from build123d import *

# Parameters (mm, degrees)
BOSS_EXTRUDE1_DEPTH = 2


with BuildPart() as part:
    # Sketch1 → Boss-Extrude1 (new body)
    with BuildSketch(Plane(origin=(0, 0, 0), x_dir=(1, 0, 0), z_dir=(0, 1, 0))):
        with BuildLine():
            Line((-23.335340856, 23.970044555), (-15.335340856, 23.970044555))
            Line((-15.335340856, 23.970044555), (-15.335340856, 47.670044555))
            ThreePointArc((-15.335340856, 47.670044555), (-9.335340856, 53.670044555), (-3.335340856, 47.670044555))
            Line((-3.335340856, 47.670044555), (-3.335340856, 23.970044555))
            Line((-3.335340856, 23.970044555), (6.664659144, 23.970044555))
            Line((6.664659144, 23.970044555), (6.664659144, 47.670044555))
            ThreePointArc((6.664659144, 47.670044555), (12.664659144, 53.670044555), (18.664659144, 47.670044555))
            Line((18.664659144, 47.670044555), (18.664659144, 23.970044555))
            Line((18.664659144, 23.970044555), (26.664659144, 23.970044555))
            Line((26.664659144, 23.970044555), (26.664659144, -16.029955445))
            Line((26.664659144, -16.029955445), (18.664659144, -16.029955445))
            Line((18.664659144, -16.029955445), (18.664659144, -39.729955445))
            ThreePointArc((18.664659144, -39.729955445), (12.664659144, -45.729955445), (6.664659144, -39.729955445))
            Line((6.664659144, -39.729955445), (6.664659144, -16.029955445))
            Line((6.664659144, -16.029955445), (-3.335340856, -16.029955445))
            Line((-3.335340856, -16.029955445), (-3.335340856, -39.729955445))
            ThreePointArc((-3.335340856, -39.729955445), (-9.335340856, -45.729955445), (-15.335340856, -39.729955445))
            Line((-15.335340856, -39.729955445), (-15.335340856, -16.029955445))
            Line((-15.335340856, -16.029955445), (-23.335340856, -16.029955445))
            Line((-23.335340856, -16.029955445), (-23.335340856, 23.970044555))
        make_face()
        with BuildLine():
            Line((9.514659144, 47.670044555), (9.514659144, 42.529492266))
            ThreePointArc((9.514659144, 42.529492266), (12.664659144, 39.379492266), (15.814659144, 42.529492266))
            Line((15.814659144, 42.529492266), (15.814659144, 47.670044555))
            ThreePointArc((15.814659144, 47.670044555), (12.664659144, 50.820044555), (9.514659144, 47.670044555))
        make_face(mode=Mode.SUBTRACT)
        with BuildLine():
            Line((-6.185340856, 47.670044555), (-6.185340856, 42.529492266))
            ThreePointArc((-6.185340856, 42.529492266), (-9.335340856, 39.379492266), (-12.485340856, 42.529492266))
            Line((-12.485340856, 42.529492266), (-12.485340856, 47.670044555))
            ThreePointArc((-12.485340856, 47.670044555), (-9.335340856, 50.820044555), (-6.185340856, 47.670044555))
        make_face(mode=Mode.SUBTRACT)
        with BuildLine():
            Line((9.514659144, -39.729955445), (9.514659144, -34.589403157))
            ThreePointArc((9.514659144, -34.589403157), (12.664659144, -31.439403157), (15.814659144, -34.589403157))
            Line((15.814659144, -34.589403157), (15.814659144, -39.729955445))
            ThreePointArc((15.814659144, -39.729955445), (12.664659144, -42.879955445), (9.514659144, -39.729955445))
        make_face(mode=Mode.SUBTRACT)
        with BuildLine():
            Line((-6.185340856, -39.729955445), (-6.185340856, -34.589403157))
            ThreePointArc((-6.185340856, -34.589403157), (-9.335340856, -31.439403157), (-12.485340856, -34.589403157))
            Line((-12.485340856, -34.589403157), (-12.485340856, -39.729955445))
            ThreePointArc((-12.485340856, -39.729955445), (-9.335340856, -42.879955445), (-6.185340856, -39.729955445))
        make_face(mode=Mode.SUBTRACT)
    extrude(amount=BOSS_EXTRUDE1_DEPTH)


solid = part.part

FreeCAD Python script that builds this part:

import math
import FreeCAD as App
import Part
import Sketcher
Q = App.Units.Quantity

doc = App.newDocument("Part")
body = doc.addObject("PartDesign::Body", "Body")

sketch1 = body.newObject("Sketcher::SketchObject", "Sketch")
sketch1.AttachmentSupport = (doc.getObject("XZ_Plane"), [""])
sketch1.MapMode = "FlatFace"
sketch1.addGeometry(Part.LineSegment(App.Vector(-15.3, -24, 0), App.Vector(-23.3, -24, 0)), False)
sketch1.addGeometry(Part.LineSegment(App.Vector(-23.3, -24, 0), App.Vector(-23.3, 16, 0)), False)
sketch1.addGeometry(Part.LineSegment(App.Vector(-23.3, 16, 0), App.Vector(-15.3, 16, 0)), False)
sketch1.addGeometry(Part.LineSegment(App.Vector(-15.3, 16, 0), App.Vector(-15.3, 39.7, 0)), False)
sketch1.addGeometry(Part.ArcOfCircle(Part.Circle(App.Vector(-9.3, 39.7, 0), App.Vector(0, 0, 1), 6), math.radians(0), math.radians(180)), False)
sketch1.addGeometry(Part.LineSegment(App.Vector(-3.3, 39.7, 0), App.Vector(-3.3, 16, 0)), False)
sketch1.addGeometry(Part.LineSegment(App.Vector(-3.3, 16, 0), App.Vector(6.7, 16, 0)), False)
sketch1.addGeometry(Part.LineSegment(App.Vector(6.7, 16, 0), App.Vector(6.7, 39.7, 0)), False)
sketch1.addGeometry(Part.ArcOfCircle(Part.Circle(App.Vector(12.7, 39.7, 0), App.Vector(0, 0, 1), 6), math.radians(0), math.radians(180)), False)
sketch1.addGeometry(Part.LineSegment(App.Vector(18.7, 39.7, 0), App.Vector(18.7, 16, 0)), False)
sketch1.addGeometry(Part.LineSegment(App.Vector(18.7, 16, 0), App.Vector(26.7, 16, 0)), False)
sketch1.addGeometry(Part.LineSegment(App.Vector(26.7, 16, 0), App.Vector(26.7, -24, 0)), False)
sketch1.addGeometry(Part.LineSegment(App.Vector(26.7, -24, 0), App.Vector(18.7, -24, 0)), False)
sketch1.addGeometry(Part.LineSegment(App.Vector(18.7, -24, 0), App.Vector(18.7, -47.7, 0)), False)
sketch1.addGeometry(Part.ArcOfCircle(Part.Circle(App.Vector(12.7, -47.7, 0), App.Vector(0, 0, 1), 6), math.radians(180), math.radians(360)), False)
sketch1.addGeometry(Part.LineSegment(App.Vector(6.7, -47.7, 0), App.Vector(6.7, -24, 0)), False)
sketch1.addGeometry(Part.LineSegment(App.Vector(6.7, -24, 0), App.Vector(-3.3, -24, 0)), False)
sketch1.addGeometry(Part.LineSegment(App.Vector(-3.3, -24, 0), App.Vector(-3.3, -47.7, 0)), False)
sketch1.addGeometry(Part.ArcOfCircle(Part.Circle(App.Vector(-9.3, -47.7, 0), App.Vector(0, 0, 1), 6), math.radians(180), math.radians(360)), False)
sketch1.addGeometry(Part.LineSegment(App.Vector(-15.3, -47.7, 0), App.Vector(-15.3, -24, 0)), False)
sketch1.addGeometry(Part.LineSegment(App.Vector(9.5, 39.7, 0), App.Vector(9.5, 34.6, 0)), False)
sketch1.addGeometry(Part.ArcOfCircle(Part.Circle(App.Vector(12.7, 34.6, 0), App.Vector(0, 0, 1), 3.1), math.radians(180), math.radians(360)), False)
sketch1.addGeometry(Part.LineSegment(App.Vector(15.8, 34.6, 0), App.Vector(15.8, 39.7, 0)), False)
sketch1.addGeometry(Part.ArcOfCircle(Part.Circle(App.Vector(12.7, 39.7, 0), App.Vector(0, 0, 1), 3.1), math.radians(0), math.radians(180)), False)
sketch1.addGeometry(Part.ArcOfCircle(Part.Circle(App.Vector(-9.3, 39.7, 0), App.Vector(0, 0, 1), 3.1), math.radians(0), math.radians(180)), False)
sketch1.addGeometry(Part.LineSegment(App.Vector(-12.5, 39.7, 0), App.Vector(-12.5, 34.6, 0)), False)
sketch1.addGeometry(Part.ArcOfCircle(Part.Circle(App.Vector(-9.3, 34.6, 0), App.Vector(0, 0, 1), 3.1), math.radians(180), math.radians(360)), False)
sketch1.addGeometry(Part.LineSegment(App.Vector(-6.2, 34.6, 0), App.Vector(-6.2, 39.7, 0)), False)
sketch1.addGeometry(Part.ArcOfCircle(Part.Circle(App.Vector(12.7, -47.7, 0), App.Vector(0, 0, 1), 3.1), math.radians(180), math.radians(360)), False)
sketch1.addGeometry(Part.LineSegment(App.Vector(15.8, -47.7, 0), App.Vector(15.8, -42.5, 0)), False)
sketch1.addGeometry(Part.ArcOfCircle(Part.Circle(App.Vector(12.7, -42.5, 0), App.Vector(0, 0, 1), 3.1), math.radians(0), math.radians(180)), False)
sketch1.addGeometry(Part.LineSegment(App.Vector(9.5, -42.5, 0), App.Vector(9.5, -47.7, 0)), False)
sketch1.addGeometry(Part.LineSegment(App.Vector(-6.2, -47.7, 0), App.Vector(-6.2, -42.5, 0)), False)
sketch1.addGeometry(Part.ArcOfCircle(Part.Circle(App.Vector(-9.3, -42.5, 0), App.Vector(0, 0, 1), 3.1), math.radians(0), math.radians(180)), False)
sketch1.addGeometry(Part.LineSegment(App.Vector(-12.5, -42.5, 0), App.Vector(-12.5, -47.7, 0)), False)
sketch1.addGeometry(Part.ArcOfCircle(Part.Circle(App.Vector(-9.3, -47.7, 0), App.Vector(0, 0, 1), 3.1), math.radians(180), math.radians(360)), False)
sketch1.addConstraint(Sketcher.Constraint("Coincident", 0, 2, 1, 1))
sketch1.addConstraint(Sketcher.Constraint("Coincident", 1, 2, 2, 1))
sketch1.addConstraint(Sketcher.Constraint("Coincident", 2, 2, 3, 1))
sketch1.addConstraint(Sketcher.Constraint("Tangent", 3, 2, 4, 2))
sketch1.addConstraint(Sketcher.Constraint("Tangent", 4, 1, 5, 1))
sketch1.addConstraint(Sketcher.Constraint("Coincident", 5, 2, 6, 1))
sketch1.addConstraint(Sketcher.Constraint("Coincident", 6, 2, 7, 1))
sketch1.addConstraint(Sketcher.Constraint("Tangent", 7, 2, 8, 2))
sketch1.addConstraint(Sketcher.Constraint("Tangent", 8, 1, 9, 1))
sketch1.addConstraint(Sketcher.Constraint("Coincident", 9, 2, 10, 1))
sketch1.addConstraint(Sketcher.Constraint("Coincident", 10, 2, 11, 1))
sketch1.addConstraint(Sketcher.Constraint("Coincident", 11, 2, 12, 1))
sketch1.addConstraint(Sketcher.Constraint("Coincident", 12, 2, 13, 1))
sketch1.addConstraint(Sketcher.Constraint("Tangent", 13, 2, 14, 2))
sketch1.addConstraint(Sketcher.Constraint("Tangent", 14, 1, 15, 1))
sketch1.addConstraint(Sketcher.Constraint("Coincident", 15, 2, 16, 1))
sketch1.addConstraint(Sketcher.Constraint("Coincident", 16, 2, 17, 1))
sketch1.addConstraint(Sketcher.Constraint("Tangent", 17, 2, 18, 2))
sketch1.addConstraint(Sketcher.Constraint("Tangent", 18, 1, 19, 1))
sketch1.addConstraint(Sketcher.Constraint("Coincident", 19, 2, 0, 1))
sketch1.addConstraint(Sketcher.Constraint("Tangent", 20, 2, 21, 1))
sketch1.addConstraint(Sketcher.Constraint("Tangent", 21, 2, 22, 1))
sketch1.addConstraint(Sketcher.Constraint("Tangent", 22, 2, 23, 1))
sketch1.addConstraint(Sketcher.Constraint("Tangent", 23, 2, 20, 1))
sketch1.addConstraint(Sketcher.Constraint("Tangent", 24, 2, 25, 1))
sketch1.addConstraint(Sketcher.Constraint("Tangent", 25, 2, 26, 1))
sketch1.addConstraint(Sketcher.Constraint("Tangent", 26, 2, 27, 1))
sketch1.addConstraint(Sketcher.Constraint("Tangent", 27, 2, 24, 1))
sketch1.addConstraint(Sketcher.Constraint("Tangent", 28, 2, 29, 1))
sketch1.addConstraint(Sketcher.Constraint("Tangent", 29, 2, 30, 1))
sketch1.addConstraint(Sketcher.Constraint("Tangent", 30, 2, 31, 1))
sketch1.addConstraint(Sketcher.Constraint("Tangent", 31, 2, 28, 1))
sketch1.addConstraint(Sketcher.Constraint("Tangent", 32, 2, 33, 1))
sketch1.addConstraint(Sketcher.Constraint("Tangent", 33, 2, 34, 1))
sketch1.addConstraint(Sketcher.Constraint("Tangent", 34, 2, 35, 1))
sketch1.addConstraint(Sketcher.Constraint("Tangent", 35, 2, 32, 1))
sketch1.addConstraint(Sketcher.Constraint("Horizontal", 0))
sketch1.addConstraint(Sketcher.Constraint("Vertical", 1))
sketch1.addConstraint(Sketcher.Constraint("Horizontal", 2))
sketch1.addConstraint(Sketcher.Constraint("Vertical", 3))
sketch1.addConstraint(Sketcher.Constraint("Vertical", 5))
sketch1.addConstraint(Sketcher.Constraint("Horizontal", 6))
sketch1.addConstraint(Sketcher.Constraint("Vertical", 7))
sketch1.addConstraint(Sketcher.Constraint("Vertical", 9))
sketch1.addConstraint(Sketcher.Constraint("Horizontal", 10))
sketch1.addConstraint(Sketcher.Constraint("Vertical", 11))
sketch1.addConstraint(Sketcher.Constraint("Horizontal", 12))
sketch1.addConstraint(Sketcher.Constraint("Vertical", 13))
sketch1.addConstraint(Sketcher.Constraint("Vertical", 15))
sketch1.addConstraint(Sketcher.Constraint("Horizontal", 16))
sketch1.addConstraint(Sketcher.Constraint("Vertical", 17))
sketch1.addConstraint(Sketcher.Constraint("Vertical", 19))
sketch1.addConstraint(Sketcher.Constraint("Vertical", 20))
sketch1.addConstraint(Sketcher.Constraint("Vertical", 22))
sketch1.addConstraint(Sketcher.Constraint("Vertical", 25))
sketch1.addConstraint(Sketcher.Constraint("Vertical", 27))
sketch1.addConstraint(Sketcher.Constraint("Vertical", 29))
sketch1.addConstraint(Sketcher.Constraint("Vertical", 31))
sketch1.addConstraint(Sketcher.Constraint("Vertical", 32))
sketch1.addConstraint(Sketcher.Constraint("Vertical", 34))
sketch1.addConstraint(Sketcher.Constraint("Coincident", 23, 3, 8, 3))
sketch1.addConstraint(Sketcher.Constraint("Coincident", 24, 3, 4, 3))
sketch1.addConstraint(Sketcher.Constraint("Coincident", 28, 3, 14, 3))
sketch1.addConstraint(Sketcher.Constraint("Coincident", 35, 3, 18, 3))
sketch1.addConstraint(Sketcher.Constraint("Equal", 4, 8))
sketch1.addConstraint(Sketcher.Constraint("Equal", 8, 14))
sketch1.addConstraint(Sketcher.Constraint("Equal", 14, 18))
sketch1.addConstraint(Sketcher.Constraint("Equal", 23, 24))
sketch1.addConstraint(Sketcher.Constraint("Equal", 26, 28))
sketch1.addConstraint(Sketcher.Constraint("Equal", 30, 33))
sketch1.addConstraint(Sketcher.Constraint("Horizontal", 4, 3, 8, 3))
sketch1.addConstraint(Sketcher.Constraint("Horizontal", 14, 3, 18, 3))
sketch1.addConstraint(Sketcher.Constraint("Horizontal", 21, 3, 26, 3))
sketch1.addConstraint(Sketcher.Constraint("Horizontal", 30, 3, 33, 3))
sketch1.addConstraint(Sketcher.Constraint("Horizontal", 2, 2, 5, 2))
sketch1.addConstraint(Sketcher.Constraint("Horizontal", 6, 2, 9, 2))
sketch1.addConstraint(Sketcher.Constraint("Horizontal", 0, 2, 11, 2))
sketch1.addConstraint(Sketcher.Constraint("Horizontal", 12, 2, 15, 2))
sketch1.addConstraint(Sketcher.Constraint("Vertical", 8, 3, 14, 3))
sketch1.addConstraint(Sketcher.Constraint("Vertical", 4, 3, 18, 3))
sketch1.addConstraint(Sketcher.Constraint("Equal", 2, 10))
sketch1.addConstraint(Sketcher.Constraint("Equal", 9, 13))
sketch1.addConstraint(Sketcher.Constraint("Equal", 27, 29))
sketch1.addConstraint(Sketcher.Constraint("Radius", 4, Q("6 mm")))
sketch1.addConstraint(Sketcher.Constraint("DistanceX", 0, 2, 0, 1, Q("8 mm")))
sketch1.addConstraint(Sketcher.Constraint("DistanceX", 6, 1, 6, 2, Q("10 mm")))
sketch1.addConstraint(Sketcher.Constraint("DistanceY", 1, 1, 1, 2, Q("40 mm")))
sketch1.addConstraint(Sketcher.Constraint("Radius", 21, Q("3.15 mm")))
sketch1.addConstraint(Sketcher.Constraint("DistanceY", 3, 1, 3, 2, Q("23.7 mm")))
sketch1.addConstraint(Sketcher.Constraint("DistanceY", 20, 2, 20, 1, Q("5.140552 mm")))
sketch1.addConstraint(Sketcher.Constraint("DistanceX", 4, 3, -1, 1, Q("9.335341 mm")))
sketch1.addConstraint(Sketcher.Constraint("DistanceY", -1, 1, 4, 3, Q("39.729955 mm")))
pad1 = body.newObject("PartDesign::Pad", "Pad")
pad1.Profile = sketch1
pad1.Length = 2
pad1.Reversed = True

doc.recompute()
